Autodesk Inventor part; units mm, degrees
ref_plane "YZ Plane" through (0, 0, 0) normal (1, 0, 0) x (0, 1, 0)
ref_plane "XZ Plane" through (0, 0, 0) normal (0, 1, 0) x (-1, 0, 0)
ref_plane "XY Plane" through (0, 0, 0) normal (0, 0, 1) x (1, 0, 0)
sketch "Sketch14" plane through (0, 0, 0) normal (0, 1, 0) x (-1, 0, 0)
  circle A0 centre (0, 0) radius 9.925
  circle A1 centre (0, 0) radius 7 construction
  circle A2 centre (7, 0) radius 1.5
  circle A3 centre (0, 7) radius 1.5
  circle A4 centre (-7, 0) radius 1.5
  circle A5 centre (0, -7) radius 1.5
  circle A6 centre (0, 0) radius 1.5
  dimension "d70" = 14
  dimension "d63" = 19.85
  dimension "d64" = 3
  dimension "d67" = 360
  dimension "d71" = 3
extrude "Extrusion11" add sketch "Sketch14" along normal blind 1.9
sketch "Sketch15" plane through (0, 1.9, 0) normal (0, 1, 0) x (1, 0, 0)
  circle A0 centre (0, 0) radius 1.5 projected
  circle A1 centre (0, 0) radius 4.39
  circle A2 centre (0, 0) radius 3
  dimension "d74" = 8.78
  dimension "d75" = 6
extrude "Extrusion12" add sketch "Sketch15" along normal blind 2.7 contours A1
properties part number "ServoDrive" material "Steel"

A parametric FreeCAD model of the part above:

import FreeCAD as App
import Part
import Sketcher

V = App.Vector
Q = App.Units.Quantity

doc = App.newDocument("Part")
body = doc.addObject("PartDesign::Body", "Body")

# Sketch on XZ plane
sketch1 = body.newObject("Sketcher::SketchObject", "Sketch")
sketch1.AttachmentSupport = (doc.getObject("XZ_Plane"), [""])
sketch1.MapMode = "FlatFace"
sketch1.addGeometry([
    Part.Circle(V(0, 0, 0), V(0, 0, 1), 9.9),  # 0
    Part.Circle(V(0, -7, 0), V(0, 0, 1), 1.5),  # 1
    Part.Circle(V(7, 0, 0), V(0, 0, 1), 1.5),  # 2
    Part.Circle(V(0, 0, 0), V(0, 0, 1), 1.5),  # 3
    Part.Circle(V(-7, 0, 0), V(0, 0, 1), 1.5),  # 4
    Part.Circle(V(0, 7, 0), V(0, 0, 1), 1.5),  # 5
], False)
sketch1.addConstraint([
    Sketcher.Constraint("Coincident", 0, 3, -1, 1),
    Sketcher.Constraint("Coincident", 3, 3, -1, 1),
    Sketcher.Constraint("Equal", 1, 2),
    Sketcher.Constraint("Equal", 2, 3),
    Sketcher.Constraint("Equal", 3, 4),
    Sketcher.Constraint("Equal", 4, 5),
    Sketcher.Constraint("Symmetric", 2, 3, 4, 3, -1, 1),
    Sketcher.Constraint("Symmetric", 1, 3, 5, 3, -1, 1),
    Sketcher.Constraint("PointOnObject", 1, 3, -2),
    Sketcher.Constraint("PointOnObject", 2, 3, -1),
    Sketcher.Constraint("Diameter", 1, Q("3 mm")),
    Sketcher.Constraint("Diameter", 0, Q("19.85 mm")),
    Sketcher.Constraint("DistanceX", 4, 3, 2, 3, Q("14 mm")),
    Sketcher.Constraint("DistanceY", 1, 3, 5, 3, Q("14 mm")),
])
pad1 = body.newObject("PartDesign::Pad", "Pad")
pad1.Profile = sketch1
pad1.Length = 1.9
pad1.Reversed = True

# Sketch on XZ plane
sketch2 = body.newObject("Sketcher::SketchObject", "Sketch001")
sketch2.AttachmentSupport = (doc.getObject("XZ_Plane"), [""])
sketch2.MapMode = "FlatFace"
sketch2.AttachmentOffset = App.Placement(V(0, 0, -1.9), App.Rotation())
sketch2.addGeometry([
    Part.Circle(V(0, 0, 0), V(0, 0, 1), 4.4),
    Part.Circle(V(0, 0, 0), V(0, 0, 1), 3),
], False)
sketch2.addConstraint([
    Sketcher.Constraint("Coincident", 0, 3, -1, 1),
    Sketcher.Constraint("Coincident", 1, 3, -1, 1),
    Sketcher.Constraint("Diameter", 1, Q("6 mm")),
    Sketcher.Constraint("Diameter", 0, Q("8.78 mm")),
])
pad2 = body.newObject("PartDesign::Pad", "Pad001")
pad2.Profile = sketch2
pad2.Length = 2.7
pad2.Reversed = True

doc.recompute()
